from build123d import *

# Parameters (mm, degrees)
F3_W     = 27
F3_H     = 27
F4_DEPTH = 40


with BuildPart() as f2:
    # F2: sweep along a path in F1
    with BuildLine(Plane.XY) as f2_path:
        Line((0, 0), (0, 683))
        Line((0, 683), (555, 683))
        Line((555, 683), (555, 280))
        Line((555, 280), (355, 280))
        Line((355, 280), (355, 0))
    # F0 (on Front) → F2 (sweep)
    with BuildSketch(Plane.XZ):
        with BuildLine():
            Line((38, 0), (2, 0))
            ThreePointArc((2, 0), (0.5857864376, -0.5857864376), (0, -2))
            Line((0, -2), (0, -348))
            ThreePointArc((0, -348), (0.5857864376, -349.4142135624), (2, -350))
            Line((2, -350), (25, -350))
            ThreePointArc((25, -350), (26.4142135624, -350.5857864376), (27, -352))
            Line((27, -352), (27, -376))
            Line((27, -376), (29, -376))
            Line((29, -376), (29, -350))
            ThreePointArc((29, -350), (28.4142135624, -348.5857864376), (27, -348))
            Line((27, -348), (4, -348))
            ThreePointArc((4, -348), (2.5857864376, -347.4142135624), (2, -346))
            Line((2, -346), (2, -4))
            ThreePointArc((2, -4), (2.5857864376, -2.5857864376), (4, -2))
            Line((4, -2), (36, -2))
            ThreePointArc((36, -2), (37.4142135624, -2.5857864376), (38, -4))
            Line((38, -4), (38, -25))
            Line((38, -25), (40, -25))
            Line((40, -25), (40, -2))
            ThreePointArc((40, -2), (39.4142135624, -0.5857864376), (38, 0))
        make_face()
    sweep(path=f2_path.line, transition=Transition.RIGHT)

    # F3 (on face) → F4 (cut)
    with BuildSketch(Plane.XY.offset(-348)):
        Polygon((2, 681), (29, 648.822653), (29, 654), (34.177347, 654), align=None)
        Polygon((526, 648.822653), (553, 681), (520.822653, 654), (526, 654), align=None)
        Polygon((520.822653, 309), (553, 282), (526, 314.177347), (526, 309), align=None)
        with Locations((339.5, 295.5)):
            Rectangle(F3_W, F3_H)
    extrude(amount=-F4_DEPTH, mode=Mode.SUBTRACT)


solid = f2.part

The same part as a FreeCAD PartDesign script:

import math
import FreeCAD as App
import Part
import Sketcher
Q = App.Units.Quantity


def add_polygon(sketch, points):
    """Adds a closed chain of lines whose ends are joined by coincident constraints."""
    first, n = sketch.GeometryCount, len(points)
    for a, b in zip(points, points[1:] + points[:1]):
        sketch.addGeometry(Part.LineSegment(App.Vector(*a, 0), App.Vector(*b, 0)), False)
    for i in range(n):
        sketch.addConstraint(Sketcher.Constraint("Coincident", first + i, 2, first + (i + 1) % n, 1))

doc = App.newDocument("Part")
body = doc.addObject("PartDesign::Body", "Body")

# Sketch on XZ plane
sketch1 = body.newObject("Sketcher::SketchObject", "Sketch")
sketch1.AttachmentSupport = (doc.getObject("XZ_Plane"), [""])
sketch1.MapMode = "FlatFace"
sketch1.addGeometry([
    Part.LineSegment(App.Vector(38, 0, 0), App.Vector(2, 0, 0)),  # 0
    Part.ArcOfCircle(Part.Circle(App.Vector(2, -2, 0), App.Vector(0, 0, 1), 2), math.radians(90), math.radians(180)),  # 1
    Part.LineSegment(App.Vector(0, -2, 0), App.Vector(0, -348, 0)),  # 2
    Part.ArcOfCircle(Part.Circle(App.Vector(2, -348, 0), App.Vector(0, 0, 1), 2), math.radians(180), math.radians(270)),  # 3
    Part.LineSegment(App.Vector(2, -350, 0), App.Vector(25, -350, 0)),  # 4
    Part.ArcOfCircle(Part.Circle(App.Vector(25, -352, 0), App.Vector(0, 0, 1), 2), math.radians(0), math.radians(90)),  # 5
    Part.LineSegment(App.Vector(27, -352, 0), App.Vector(27, -376, 0)),  # 6
    Part.LineSegment(App.Vector(27, -376, 0), App.Vector(29, -376, 0)),  # 7
    Part.LineSegment(App.Vector(29, -376, 0), App.Vector(29, -350, 0)),  # 8
    Part.ArcOfCircle(Part.Circle(App.Vector(27, -350, 0), App.Vector(0, 0, 1), 2), math.radians(0), math.radians(90)),  # 9
    Part.LineSegment(App.Vector(27, -348, 0), App.Vector(4, -348, 0)),  # 10
    Part.ArcOfCircle(Part.Circle(App.Vector(4, -346, 0), App.Vector(0, 0, 1), 2), math.radians(180), math.radians(270)),  # 11
    Part.LineSegment(App.Vector(2, -346, 0), App.Vector(2, -4, 0)),  # 12
    Part.ArcOfCircle(Part.Circle(App.Vector(4, -4, 0), App.Vector(0, 0, 1), 2), math.radians(90), math.radians(180)),  # 13
    Part.LineSegment(App.Vector(4, -2, 0), App.Vector(36, -2, 0)),  # 14
    Part.ArcOfCircle(Part.Circle(App.Vector(36, -4, 0), App.Vector(0, 0, 1), 2), math.radians(0), math.radians(90)),  # 15
    Part.LineSegment(App.Vector(38, -4, 0), App.Vector(38, -25, 0)),  # 16
    Part.LineSegment(App.Vector(38, -25, 0), App.Vector(40, -25, 0)),  # 17
    Part.LineSegment(App.Vector(40, -25, 0), App.Vector(40, -2, 0)),  # 18
    Part.ArcOfCircle(Part.Circle(App.Vector(38, -2, 0), App.Vector(0, 0, 1), 2), math.radians(0), math.radians(90)),  # 19
], False)
sketch1.addConstraint([
    Sketcher.Constraint("Tangent", 0, 2, 1, 1),
    Sketcher.Constraint("Tangent", 1, 2, 2, 1),
    Sketcher.Constraint("Tangent", 2, 2, 3, 1),
    Sketcher.Constraint("Tangent", 3, 2, 4, 1),
    Sketcher.Constraint("Tangent", 4, 2, 5, 2),
    Sketcher.Constraint("Tangent", 5, 1, 6, 1),
    Sketcher.Constraint("Coincident", 6, 2, 7, 1),
    Sketcher.Constraint("Coincident", 7, 2, 8, 1),
    Sketcher.Constraint("Tangent", 8, 2, 9, 1),
    Sketcher.Constraint("Tangent", 9, 2, 10, 1),
    Sketcher.Constraint("Tangent", 10, 2, 11, 2),
    Sketcher.Constraint("Tangent", 11, 1, 12, 1),
    Sketcher.Constraint("Tangent", 12, 2, 13, 2),
    Sketcher.Constraint("Tangent", 13, 1, 14, 1),
    Sketcher.Constraint("Tangent", 14, 2, 15, 2),
    Sketcher.Constraint("Tangent", 15, 1, 16, 1),
    Sketcher.Constraint("Coincident", 16, 2, 17, 1),
    Sketcher.Constraint("Coincident", 17, 2, 18, 1),
    Sketcher.Constraint("Tangent", 18, 2, 19, 1),
    Sketcher.Constraint("Tangent", 19, 2, 0, 1),
    Sketcher.Constraint("Horizontal", 0),
    Sketcher.Constraint("Vertical", 2),
    Sketcher.Constraint("Horizontal", 4),
    Sketcher.Constraint("Vertical", 6),
    Sketcher.Constraint("Horizontal", 7),
    Sketcher.Constraint("Vertical", 8),
    Sketcher.Constraint("Horizontal", 10),
    Sketcher.Constraint("Vertical", 12),
    Sketcher.Constraint("Horizontal", 14),
    Sketcher.Constraint("Vertical", 16),
    Sketcher.Constraint("Horizontal", 17),
    Sketcher.Constraint("Vertical", 18),
    Sketcher.Constraint("Equal", 1, 3),
    Sketcher.Constraint("Equal", 3, 5),
    Sketcher.Constraint("Equal", 5, 9),
    Sketcher.Constraint("Equal", 9, 11),
    Sketcher.Constraint("Equal", 11, 13),
    Sketcher.Constraint("Equal", 13, 15),
    Sketcher.Constraint("Equal", 15, 19),
    Sketcher.Constraint("PointOnObject", 0, 2, -1),
    Sketcher.Constraint("PointOnObject", 1, 2, -2),
    Sketcher.Constraint("Horizontal", 9, 3, 3, 2),
    Sketcher.Constraint("Horizontal", 1, 2, 13, 1),
    Sketcher.Constraint("Vertical", 9, 3, 5, 1),
    Sketcher.Constraint("Vertical", 3, 2, 11, 1),
    Sketcher.Constraint("Vertical", 19, 3, 15, 1),
    Sketcher.Constraint("Equal", 10, 18),
    Sketcher.Constraint("Radius", 1, Q("2 mm")),
    Sketcher.Constraint("DistanceX", 0, 2, 0, 1, Q("36 mm")),
    Sketcher.Constraint("DistanceX", 4, 1, 4, 2, Q("23 mm")),
    Sketcher.Constraint("DistanceY", 2, 2, 2, 1, Q("346 mm")),
    Sketcher.Constraint("DistanceY", 6, 2, 6, 1, Q("24 mm")),
])

# Sketch on XY plane
sketch2 = body.newObject("Sketcher::SketchObject", "Sketch001")
sketch2.AttachmentSupport = (doc.getObject("XY_Plane"), [""])
sketch2.MapMode = "FlatFace"
sketch2.addGeometry([
    Part.LineSegment(App.Vector(0, 0, 0), App.Vector(0, 683, 0)),  # 0
    Part.LineSegment(App.Vector(0, 683, 0), App.Vector(555, 683, 0)),  # 1
    Part.LineSegment(App.Vector(555, 683, 0), App.Vector(555, 280, 0)),  # 2
    Part.LineSegment(App.Vector(555, 280, 0), App.Vector(355, 280, 0)),  # 3
    Part.LineSegment(App.Vector(355, 280, 0), App.Vector(355, 0, 0)),  # 4
], False)
sketch2.addConstraint([
    Sketcher.Constraint("Coincident", 0, 2, 1, 1),
    Sketcher.Constraint("Coincident", 1, 2, 2, 1),
    Sketcher.Constraint("Coincident", 2, 2, 3, 1),
    Sketcher.Constraint("Coincident", 3, 2, 4, 1),
    Sketcher.Constraint("Vertical", 0),
    Sketcher.Constraint("Horizontal", 1),
    Sketcher.Constraint("Vertical", 2),
    Sketcher.Constraint("Horizontal", 3),
    Sketcher.Constraint("Vertical", 4),
    Sketcher.Constraint("Coincident", 0, 1, -1, 1),
    Sketcher.Constraint("PointOnObject", 4, 2, -1),
    Sketcher.Constraint("DistanceX", 1, 1, 1, 2, Q("555 mm")),
    Sketcher.Constraint("DistanceX", 3, 2, 3, 1, Q("200 mm")),
    Sketcher.Constraint("DistanceY", 0, 1, 0, 2, Q("683 mm")),
    Sketcher.Constraint("DistanceY", 2, 2, 2, 1, Q("403 mm")),
])
doc.recompute()

additivepipe = body.newObject("PartDesign::AdditivePipe", "AdditivePipe")
additivepipe.Profile = sketch1
additivepipe.Spine = (sketch2, ["Edge1", "Edge2", "Edge3", "Edge4", "Edge5"])
additivepipe.Transition = "Right corner"

# Sketch on XY plane
sketch3 = body.newObject("Sketcher::SketchObject", "Sketch002")
sketch3.AttachmentSupport = (doc.getObject("XY_Plane"), [""])
sketch3.MapMode = "FlatFace"
sketch3.AttachmentOffset = App.Placement(App.Vector(0, 0, -348), App.Rotation())
add_polygon(sketch3, [(2, 681), (29, 649), (29, 654), (34, 654)])  # lines 0-3
add_polygon(sketch3, [(526, 649), (553, 681), (521, 654), (526, 654)])  # lines 4-7
add_polygon(sketch3, [(521, 309), (553, 282), (526, 314), (526, 309)])  # lines 8-11
add_polygon(sketch3, [(326, 309), (326, 282), (353, 282), (353, 309)])  # lines 12-15
sketch3.addConstraint([
    Sketcher.Constraint("Vertical", 1),
    Sketcher.Constraint("Horizontal", 2),
    Sketcher.Constraint("Horizontal", 6),
    Sketcher.Constraint("Vertical", 7),
    Sketcher.Constraint("Vertical", 10),
    Sketcher.Constraint("Horizontal", 11),
    Sketcher.Constraint("Vertical", 12),
    Sketcher.Constraint("Horizontal", 13),
    Sketcher.Constraint("Vertical", 14),
    Sketcher.Constraint("Horizontal", 15),
    Sketcher.Constraint("Perpendicular", 3, 4),
    Sketcher.Constraint("Perpendicular", 0, 5),
    Sketcher.Constraint("Perpendicular", 4, 8),
    Sketcher.Constraint("Perpendicular", 5, 9),
    Sketcher.Constraint("Horizontal", 3, 2, 4, 2),
    Sketcher.Constraint("Horizontal", 2, 2, 5, 2),
    Sketcher.Constraint("Horizontal", 0, 2, 7, 2),
    Sketcher.Constraint("Horizontal", 8, 2, 12, 2),
    Sketcher.Constraint("Horizontal", 11, 2, 14, 2),
    Sketcher.Constraint("Vertical", 4, 2, 8, 2),
    Sketcher.Constraint("Vertical", 7, 2, 9, 2),
    Sketcher.Constraint("Vertical", 5, 2, 11, 2),
    Sketcher.Constraint("Equal", 2, 6),
    Sketcher.Constraint("Equal", 11, 1),
    Sketcher.Constraint("Equal", 15, 12),
    Sketcher.Constraint("DistanceX", 13, 1, 13, 2, Q("27 mm")),
    Sketcher.Constraint("Angle", 0, Q("-50 deg")),
    Sketcher.Constraint("DistanceX", -1, 1, 0, 2, Q("29 mm")),
    Sketcher.Constraint("DistanceY", -1, 1, 1, 2, Q("654 mm")),
    Sketcher.Constraint("DistanceX", -1, 1, 4, 2, Q("553 mm")),
    Sketcher.Constraint("DistanceY", -1, 1, 8, 2, Q("282 mm")),
    Sketcher.Constraint("DistanceX", -1, 1, 12, 2, Q("326 mm")),
])
pocket1 = body.newObject("PartDesign::Pocket", "Pocket")
pocket1.Profile = sketch3
pocket1.Length = 40

doc.recompute()
